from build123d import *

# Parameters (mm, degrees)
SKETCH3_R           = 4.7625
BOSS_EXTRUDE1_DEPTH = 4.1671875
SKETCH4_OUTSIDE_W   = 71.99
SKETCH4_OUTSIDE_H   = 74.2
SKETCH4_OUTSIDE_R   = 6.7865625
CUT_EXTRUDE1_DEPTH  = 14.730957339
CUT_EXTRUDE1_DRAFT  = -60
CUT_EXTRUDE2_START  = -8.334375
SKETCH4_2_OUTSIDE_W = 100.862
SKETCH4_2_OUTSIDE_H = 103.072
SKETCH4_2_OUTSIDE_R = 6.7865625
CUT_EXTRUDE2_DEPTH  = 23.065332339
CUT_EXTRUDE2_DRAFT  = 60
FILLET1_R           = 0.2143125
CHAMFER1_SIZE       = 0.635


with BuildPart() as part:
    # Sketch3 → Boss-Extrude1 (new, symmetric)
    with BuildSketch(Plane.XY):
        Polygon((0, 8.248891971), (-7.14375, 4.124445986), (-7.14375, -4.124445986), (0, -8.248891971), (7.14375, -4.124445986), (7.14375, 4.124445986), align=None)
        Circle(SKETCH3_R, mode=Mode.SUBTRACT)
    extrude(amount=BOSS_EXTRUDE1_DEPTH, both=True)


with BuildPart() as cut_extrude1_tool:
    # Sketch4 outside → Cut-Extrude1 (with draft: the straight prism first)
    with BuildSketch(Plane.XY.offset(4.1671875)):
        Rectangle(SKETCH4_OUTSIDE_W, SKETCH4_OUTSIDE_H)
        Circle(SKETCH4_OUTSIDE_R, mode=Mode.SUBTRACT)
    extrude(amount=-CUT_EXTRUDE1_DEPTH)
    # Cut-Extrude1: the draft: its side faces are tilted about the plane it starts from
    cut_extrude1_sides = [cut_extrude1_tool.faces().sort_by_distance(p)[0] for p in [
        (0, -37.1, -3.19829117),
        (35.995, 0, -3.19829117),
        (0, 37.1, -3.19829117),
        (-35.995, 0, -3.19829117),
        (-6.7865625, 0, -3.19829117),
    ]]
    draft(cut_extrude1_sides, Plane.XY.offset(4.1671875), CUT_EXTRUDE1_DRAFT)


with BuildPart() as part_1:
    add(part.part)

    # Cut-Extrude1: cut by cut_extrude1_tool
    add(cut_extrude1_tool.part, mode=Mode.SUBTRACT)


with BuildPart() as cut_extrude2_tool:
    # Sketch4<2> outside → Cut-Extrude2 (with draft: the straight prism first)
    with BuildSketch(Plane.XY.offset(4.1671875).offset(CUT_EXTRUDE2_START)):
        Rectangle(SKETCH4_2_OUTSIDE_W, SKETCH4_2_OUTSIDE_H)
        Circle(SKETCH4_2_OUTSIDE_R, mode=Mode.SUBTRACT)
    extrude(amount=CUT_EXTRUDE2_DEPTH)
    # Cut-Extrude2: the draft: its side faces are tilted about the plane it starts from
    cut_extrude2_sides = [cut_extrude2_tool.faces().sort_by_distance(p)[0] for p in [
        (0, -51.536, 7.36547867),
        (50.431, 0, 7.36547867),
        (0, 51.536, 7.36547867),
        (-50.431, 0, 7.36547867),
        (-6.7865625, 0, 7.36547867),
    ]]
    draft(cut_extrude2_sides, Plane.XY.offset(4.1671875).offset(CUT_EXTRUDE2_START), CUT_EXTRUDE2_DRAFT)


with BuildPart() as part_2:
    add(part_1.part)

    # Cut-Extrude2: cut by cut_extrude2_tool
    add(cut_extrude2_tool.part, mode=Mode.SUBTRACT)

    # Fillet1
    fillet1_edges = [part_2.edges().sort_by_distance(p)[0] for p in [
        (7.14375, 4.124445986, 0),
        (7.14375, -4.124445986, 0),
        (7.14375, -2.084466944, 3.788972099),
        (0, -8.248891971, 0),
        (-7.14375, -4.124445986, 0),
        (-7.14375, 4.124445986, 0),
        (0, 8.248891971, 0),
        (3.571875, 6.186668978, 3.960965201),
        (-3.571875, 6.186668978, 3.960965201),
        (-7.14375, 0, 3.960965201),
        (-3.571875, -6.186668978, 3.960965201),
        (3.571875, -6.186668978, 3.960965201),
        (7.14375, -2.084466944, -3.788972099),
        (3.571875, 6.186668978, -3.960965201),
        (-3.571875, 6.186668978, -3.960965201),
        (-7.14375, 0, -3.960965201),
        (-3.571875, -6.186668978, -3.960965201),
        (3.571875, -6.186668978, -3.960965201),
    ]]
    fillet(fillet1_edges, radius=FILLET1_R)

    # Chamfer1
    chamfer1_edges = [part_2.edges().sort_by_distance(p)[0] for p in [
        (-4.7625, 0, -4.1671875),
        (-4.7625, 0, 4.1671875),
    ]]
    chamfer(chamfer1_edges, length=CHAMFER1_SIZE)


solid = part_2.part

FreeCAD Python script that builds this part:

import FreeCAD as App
import Part
import Sketcher

V = App.Vector
Q = App.Units.Quantity


def edges_at(feature, points):
    """Names of the edges that pass closest to the given points."""
    edges = feature.Shape.Edges
    near = lambda p: min(range(len(edges)), key=lambda i: edges[i].distToShape(Part.Vertex(*p))[0])
    return sorted({f"Edge{near(p) + 1}" for p in points})


def faces_at(feature, points):
    """Names of the faces that lie closest to the given points."""
    faces = feature.Shape.Faces
    near = lambda p: min(range(len(faces)), key=lambda i: faces[i].distToShape(Part.Vertex(*p))[0])
    return sorted({f"Face{near(p) + 1}" for p in points})

doc = App.newDocument("Part")
body = doc.addObject("PartDesign::Body", "Body")

# Sketch on XY plane
sketch1 = body.newObject("Sketcher::SketchObject", "Sketch")
sketch1.AttachmentSupport = (doc.getObject("XY_Plane"), [""])
sketch1.MapMode = "FlatFace"
sketch1.addGeometry([
    Part.LineSegment(V(0, 8.2, 0), V(-7.1, 4.1, 0)),  # 0
    Part.LineSegment(V(-7.1, 4.1, 0), V(-7.1, -4.1, 0)),  # 1
    Part.LineSegment(V(-7.1, -4.1, 0), V(0, -8.2, 0)),  # 2
    Part.LineSegment(V(0, -8.2, 0), V(7.1, -4.1, 0)),  # 3
    Part.LineSegment(V(7.1, -4.1, 0), V(7.1, 4.1, 0)),  # 4
    Part.LineSegment(V(7.1, 4.1, 0), V(0, 8.2, 0)),  # 5
    Part.Circle(V(0, 0, 0), V(0, 0, 1), 4.8),  # 6
], False)
sketch1.addConstraint([
    Sketcher.Constraint("Coincident", 0, 2, 1, 1),
    Sketcher.Constraint("Coincident", 1, 2, 2, 1),
    Sketcher.Constraint("Coincident", 2, 2, 3, 1),
    Sketcher.Constraint("Coincident", 3, 2, 4, 1),
    Sketcher.Constraint("Coincident", 4, 2, 5, 1),
    Sketcher.Constraint("Coincident", 5, 2, 0, 1),
    Sketcher.Constraint("Vertical", 1),
    Sketcher.Constraint("Vertical", 4),
    Sketcher.Constraint("Coincident", 6, 3, -1, 1),
    Sketcher.Constraint("Symmetric", 0, 2, 3, 2, -1, 1),
    Sketcher.Constraint("Symmetric", 2, 2, 5, 2, -1, 1),
    Sketcher.Constraint("PointOnObject", 2, 2, -2),
    Sketcher.Constraint("Parallel", 2, 5),
    Sketcher.Constraint("Horizontal", 1, 2, 3, 2),
    Sketcher.Constraint("Diameter", 6, Q("0.375 in")),
    Sketcher.Constraint("Angle", 0, Q("-150 deg")),
    Sketcher.Constraint("DistanceX", 0, 2, -1, 1, Q("0.28125 in")),
    Sketcher.Constraint("DistanceY", 1, 2, 1, 1, Q("8.248892 mm")),
])
pad1 = body.newObject("PartDesign::Pad", "Pad")
pad1.Profile = sketch1
pad1.Length = Q("0.328125 in")
pad1.Midplane = True
body2 = doc.addObject("PartDesign::Body", "Body001")

# Sketch on XY plane
sketch2 = body2.newObject("Sketcher::SketchObject", "Sketch001")
sketch2.AttachmentSupport = (doc.getObject("XY_Plane001"), [""])
sketch2.MapMode = "FlatFace"
sketch2.AttachmentOffset = App.Placement(V(0, 0, 4.167187), App.Rotation())
sketch2.addGeometry([
    Part.LineSegment(V(-36, 37, 0), V(-36, -37, 0)),  # 0
    Part.LineSegment(V(-36, -37, 0), V(36, -37, 0)),  # 1
    Part.LineSegment(V(36, -37, 0), V(36, 37, 0)),  # 2
    Part.LineSegment(V(36, 37, 0), V(-36, 37, 0)),  # 3
    Part.Circle(V(0, 0, 0), V(0, 0, 1), 7),  # 4
], False)
sketch2.addConstraint([
    Sketcher.Constraint("Coincident", 0, 2, 1, 1),
    Sketcher.Constraint("Coincident", 1, 2, 2, 1),
    Sketcher.Constraint("Coincident", 2, 2, 3, 1),
    Sketcher.Constraint("Coincident", 3, 2, 0, 1),
    Sketcher.Constraint("Vertical", 0),
    Sketcher.Constraint("Horizontal", 1),
    Sketcher.Constraint("Vertical", 2),
    Sketcher.Constraint("Horizontal", 3),
    Sketcher.Constraint("Coincident", 4, 3, -1, 1),
    Sketcher.Constraint("Symmetric", 0, 2, 2, 2, -1, 1),
    Sketcher.Constraint("Diameter", 4, Q("13.573125 mm")),
    Sketcher.Constraint("DistanceX", 1, 1, 1, 2, Q("71.99 mm")),
    Sketcher.Constraint("DistanceY", 0, 2, 0, 1, Q("74.2 mm")),
])
pad2 = body2.newObject("PartDesign::Pad", "Pad001")
pad2.Profile = sketch2
pad2.Length = 14.730957
pad2.Reversed = True
doc.recompute()

datumplane = body2.newObject("PartDesign::Plane", "DatumPlane")
datumplane.AttachmentSupport = (doc.getObject("XY_Plane001"), [""])
datumplane.MapMode = "FlatFace"
datumplane.AttachmentOffset = App.Placement(V(0, 0, 4.167187), App.Rotation())
draft = body2.newObject("PartDesign::Draft", "Draft")
draft.Base = (pad2, faces_at(pad2, [
    (0, -37.1, -3.198),
    (35.995, 0, -3.198),
    (0, 37.1, -3.198),
    (-35.995, 0, -3.198),
    (-6.787, 0, -3.198),
]))
draft.NeutralPlane = (datumplane, [""])
draft.Angle = 60
draft.Reversed = True
doc.recompute()

boolean = body.newObject("PartDesign::Boolean", "Boolean")
boolean.Type = "Cut"
boolean.addObjects([body2])
body3 = doc.addObject("PartDesign::Body", "Body002")

# Sketch on XY plane
sketch3 = body3.newObject("Sketcher::SketchObject", "Sketch002")
sketch3.AttachmentSupport = (doc.getObject("XY_Plane002"), [""])
sketch3.MapMode = "FlatFace"
sketch3.AttachmentOffset = App.Placement(V(0, 0, -4.167187), App.Rotation())
sketch3.addGeometry([
    Part.LineSegment(V(-50, 52, 0), V(-50, -52, 0)),  # 0
    Part.LineSegment(V(-50, -52, 0), V(50, -52, 0)),  # 1
    Part.LineSegment(V(50, -52, 0), V(50, 52, 0)),  # 2
    Part.LineSegment(V(50, 52, 0), V(-50, 52, 0)),  # 3
    Part.Circle(V(0, 0, 0), V(0, 0, 1), 7),  # 4
], False)
sketch3.addConstraint([
    Sketcher.Constraint("Coincident", 0, 2, 1, 1),
    Sketcher.Constraint("Coincident", 1, 2, 2, 1),
    Sketcher.Constraint("Coincident", 2, 2, 3, 1),
    Sketcher.Constraint("Coincident", 3, 2, 0, 1),
    Sketcher.Constraint("Vertical", 0),
    Sketcher.Constraint("Horizontal", 1),
    Sketcher.Constraint("Vertical", 2),
    Sketcher.Constraint("Horizontal", 3),
    Sketcher.Constraint("Coincident", 4, 3, -1, 1),
    Sketcher.Constraint("Symmetric", 0, 2, 2, 2, -1, 1),
    Sketcher.Constraint("Diameter", 4, Q("13.573125 mm")),
    Sketcher.Constraint("DistanceX", 1, 1, 1, 2, Q("100.862 mm")),
    Sketcher.Constraint("DistanceY", 0, 2, 0, 1, Q("103.072 mm")),
])
pad3 = body3.newObject("PartDesign::Pad", "Pad002")
pad3.Profile = sketch3
pad3.Length = 23.065332
doc.recompute()

datumplane2 = body3.newObject("PartDesign::Plane", "DatumPlane001")
datumplane2.AttachmentSupport = (doc.getObject("XY_Plane002"), [""])
datumplane2.MapMode = "FlatFace"
datumplane2.AttachmentOffset = App.Placement(V(0, 0, -4.167187), App.Rotation())
draft2 = body3.newObject("PartDesign::Draft", "Draft001")
draft2.Base = (pad3, faces_at(pad3, [
    (0, -51.536, 7.365),
    (50.431, 0, 7.365),
    (0, 51.536, 7.365),
    (-50.431, 0, 7.365),
    (-6.787, 0, 7.365),
]))
draft2.NeutralPlane = (datumplane2, [""])
draft2.Angle = 60
draft2.Reversed = False
doc.recompute()

boolean2 = body.newObject("PartDesign::Boolean", "Boolean001")
boolean2.Type = "Cut"
boolean2.addObjects([body3])
doc.recompute()

fillet = body.newObject("PartDesign::Fillet", "Fillet")
fillet.Base = (boolean2, edges_at(boolean2, [
    (7.144, 4.124, 0),
    (7.144, -4.124, 0),
    (7.144, -2.084, 3.789),
    (0, -8.249, 0),
    (-7.144, -4.124, 0),
    (-7.144, 4.124, 0),
    (0, 8.249, 0),
    (3.572, 6.187, 3.961),
    (-3.572, 6.187, 3.961),
    (-7.144, 0, 3.961),
    (-3.572, -6.187, 3.961),
    (3.572, -6.187, 3.961),
    (7.144, -2.084, -3.789),
    (3.572, 6.187, -3.961),
    (-3.572, 6.187, -3.961),
    (-7.144, 0, -3.961),
    (-3.572, -6.187, -3.961),
    (3.572, -6.187, -3.961),
]))
fillet.Radius = 0.214312
doc.recompute()

chamfer = body.newObject("PartDesign::Chamfer", "Chamfer")
chamfer.Base = (fillet, edges_at(fillet, [(-4.763, 0, -4.167), (-4.763, 0, 4.167)]))
chamfer.Size = Q("0.025 in")

doc.recompute()
